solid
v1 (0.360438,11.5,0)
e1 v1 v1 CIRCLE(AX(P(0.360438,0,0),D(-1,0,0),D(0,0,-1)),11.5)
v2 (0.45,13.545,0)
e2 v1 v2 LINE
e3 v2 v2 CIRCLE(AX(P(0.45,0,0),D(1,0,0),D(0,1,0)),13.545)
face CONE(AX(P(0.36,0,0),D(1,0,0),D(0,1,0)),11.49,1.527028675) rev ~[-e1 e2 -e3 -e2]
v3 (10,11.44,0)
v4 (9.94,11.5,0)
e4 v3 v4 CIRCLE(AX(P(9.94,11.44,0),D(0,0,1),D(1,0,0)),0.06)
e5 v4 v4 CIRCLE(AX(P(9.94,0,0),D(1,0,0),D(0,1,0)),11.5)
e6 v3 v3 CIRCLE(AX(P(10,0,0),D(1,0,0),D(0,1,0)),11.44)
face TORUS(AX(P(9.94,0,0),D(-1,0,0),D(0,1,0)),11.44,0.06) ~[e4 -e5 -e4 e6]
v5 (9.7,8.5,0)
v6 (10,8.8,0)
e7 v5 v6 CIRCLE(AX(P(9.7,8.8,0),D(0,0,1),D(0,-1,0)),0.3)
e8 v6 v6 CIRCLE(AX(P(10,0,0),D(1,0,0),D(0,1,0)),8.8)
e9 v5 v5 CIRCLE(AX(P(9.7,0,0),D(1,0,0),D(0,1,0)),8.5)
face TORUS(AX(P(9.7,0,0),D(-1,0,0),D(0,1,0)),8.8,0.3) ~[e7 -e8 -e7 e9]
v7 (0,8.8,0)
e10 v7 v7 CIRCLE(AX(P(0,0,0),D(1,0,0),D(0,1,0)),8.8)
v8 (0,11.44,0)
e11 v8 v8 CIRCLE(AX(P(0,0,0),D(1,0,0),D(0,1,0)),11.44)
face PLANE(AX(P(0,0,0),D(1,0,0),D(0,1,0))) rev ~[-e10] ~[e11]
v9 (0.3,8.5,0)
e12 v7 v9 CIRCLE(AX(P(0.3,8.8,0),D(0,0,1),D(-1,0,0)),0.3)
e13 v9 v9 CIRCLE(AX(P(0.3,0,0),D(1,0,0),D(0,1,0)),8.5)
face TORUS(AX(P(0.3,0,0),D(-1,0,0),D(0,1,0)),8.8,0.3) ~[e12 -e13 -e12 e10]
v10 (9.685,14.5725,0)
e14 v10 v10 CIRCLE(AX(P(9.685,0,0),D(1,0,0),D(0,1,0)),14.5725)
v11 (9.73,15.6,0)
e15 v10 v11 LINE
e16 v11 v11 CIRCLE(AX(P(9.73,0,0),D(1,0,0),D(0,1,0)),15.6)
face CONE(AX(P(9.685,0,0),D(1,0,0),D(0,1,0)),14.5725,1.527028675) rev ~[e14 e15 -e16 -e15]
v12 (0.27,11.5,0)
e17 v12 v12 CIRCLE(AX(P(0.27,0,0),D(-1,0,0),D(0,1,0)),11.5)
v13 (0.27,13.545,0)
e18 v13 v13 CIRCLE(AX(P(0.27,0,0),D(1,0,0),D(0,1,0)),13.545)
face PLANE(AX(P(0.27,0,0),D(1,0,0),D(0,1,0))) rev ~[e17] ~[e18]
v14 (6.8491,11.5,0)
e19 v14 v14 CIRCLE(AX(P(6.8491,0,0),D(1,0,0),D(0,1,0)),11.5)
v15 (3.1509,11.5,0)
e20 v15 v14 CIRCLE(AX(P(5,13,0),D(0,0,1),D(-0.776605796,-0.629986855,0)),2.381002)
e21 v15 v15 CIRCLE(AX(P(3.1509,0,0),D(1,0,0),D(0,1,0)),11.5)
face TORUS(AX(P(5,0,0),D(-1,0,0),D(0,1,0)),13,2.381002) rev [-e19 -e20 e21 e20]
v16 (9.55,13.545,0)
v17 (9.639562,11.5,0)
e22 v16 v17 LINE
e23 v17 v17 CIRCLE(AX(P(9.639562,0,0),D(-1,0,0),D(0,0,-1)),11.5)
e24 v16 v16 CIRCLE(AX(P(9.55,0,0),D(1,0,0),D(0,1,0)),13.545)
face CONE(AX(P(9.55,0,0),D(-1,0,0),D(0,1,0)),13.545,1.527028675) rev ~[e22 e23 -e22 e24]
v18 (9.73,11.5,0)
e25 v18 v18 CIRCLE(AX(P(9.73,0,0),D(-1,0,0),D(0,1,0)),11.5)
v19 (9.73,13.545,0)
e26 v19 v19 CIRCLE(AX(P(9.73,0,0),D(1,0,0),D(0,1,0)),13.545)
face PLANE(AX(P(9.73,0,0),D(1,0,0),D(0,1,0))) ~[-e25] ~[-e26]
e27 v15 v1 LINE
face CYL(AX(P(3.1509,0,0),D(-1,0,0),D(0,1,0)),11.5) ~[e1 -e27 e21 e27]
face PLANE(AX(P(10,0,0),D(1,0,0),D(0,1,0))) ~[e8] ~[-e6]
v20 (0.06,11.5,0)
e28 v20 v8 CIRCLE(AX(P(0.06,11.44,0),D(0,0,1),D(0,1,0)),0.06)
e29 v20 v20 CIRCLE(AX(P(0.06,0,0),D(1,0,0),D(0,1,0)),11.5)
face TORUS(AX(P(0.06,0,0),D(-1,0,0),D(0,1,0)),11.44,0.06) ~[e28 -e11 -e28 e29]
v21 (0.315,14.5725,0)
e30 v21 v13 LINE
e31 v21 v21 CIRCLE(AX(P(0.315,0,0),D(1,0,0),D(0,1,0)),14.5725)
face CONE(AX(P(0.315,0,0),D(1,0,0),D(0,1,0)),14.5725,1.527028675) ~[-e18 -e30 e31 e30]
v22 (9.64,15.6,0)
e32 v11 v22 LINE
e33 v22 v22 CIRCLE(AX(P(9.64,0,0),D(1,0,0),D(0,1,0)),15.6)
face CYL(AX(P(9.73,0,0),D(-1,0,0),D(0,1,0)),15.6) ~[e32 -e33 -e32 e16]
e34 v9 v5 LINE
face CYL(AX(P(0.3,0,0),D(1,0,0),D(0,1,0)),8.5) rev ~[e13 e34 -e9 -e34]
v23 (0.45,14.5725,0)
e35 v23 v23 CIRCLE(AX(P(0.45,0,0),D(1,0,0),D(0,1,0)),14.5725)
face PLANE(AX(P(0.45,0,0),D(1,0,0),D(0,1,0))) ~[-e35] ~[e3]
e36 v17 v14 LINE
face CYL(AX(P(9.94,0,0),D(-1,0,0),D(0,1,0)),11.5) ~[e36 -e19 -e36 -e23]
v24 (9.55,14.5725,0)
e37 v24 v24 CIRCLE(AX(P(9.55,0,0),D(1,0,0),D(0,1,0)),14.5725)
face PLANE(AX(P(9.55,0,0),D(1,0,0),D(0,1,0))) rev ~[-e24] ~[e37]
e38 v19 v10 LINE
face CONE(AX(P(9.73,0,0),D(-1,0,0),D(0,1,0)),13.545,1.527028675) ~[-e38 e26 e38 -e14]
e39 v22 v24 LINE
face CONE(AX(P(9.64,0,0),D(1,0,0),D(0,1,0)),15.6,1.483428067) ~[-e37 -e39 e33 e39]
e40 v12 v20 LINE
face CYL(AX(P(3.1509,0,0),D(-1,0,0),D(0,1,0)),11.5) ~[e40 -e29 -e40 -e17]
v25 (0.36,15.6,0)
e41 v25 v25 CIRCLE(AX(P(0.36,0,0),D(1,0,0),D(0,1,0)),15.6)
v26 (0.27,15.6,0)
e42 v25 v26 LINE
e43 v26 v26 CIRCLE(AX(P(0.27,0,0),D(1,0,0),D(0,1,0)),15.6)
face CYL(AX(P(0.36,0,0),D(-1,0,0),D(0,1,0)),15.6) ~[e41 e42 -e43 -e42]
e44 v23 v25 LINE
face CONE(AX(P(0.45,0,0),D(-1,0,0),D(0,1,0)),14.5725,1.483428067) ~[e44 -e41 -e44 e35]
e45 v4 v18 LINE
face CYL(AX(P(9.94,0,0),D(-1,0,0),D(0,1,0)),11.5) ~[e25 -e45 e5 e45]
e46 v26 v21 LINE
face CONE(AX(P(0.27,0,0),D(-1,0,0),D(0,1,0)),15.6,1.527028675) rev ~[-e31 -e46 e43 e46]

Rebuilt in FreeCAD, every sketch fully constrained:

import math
import FreeCAD as App
import Part
import Sketcher

V = App.Vector


def add_polygon(sketch, points):
    """Adds a closed chain of lines whose ends are joined by coincident constraints."""
    first, n = sketch.GeometryCount, len(points)
    for a, b in zip(points, points[1:] + points[:1]):
        sketch.addGeometry(Part.LineSegment(App.Vector(*a, 0), App.Vector(*b, 0)), False)
    for i in range(n):
        sketch.addConstraint(Sketcher.Constraint("Coincident", first + i, 2, first + (i + 1) % n, 1))

doc = App.newDocument("Part")
body = doc.addObject("PartDesign::Body", "Body")

sketch1 = body.newObject("Sketcher::SketchObject", "Sketch")
sketch1.AttachmentSupport = (doc.getObject("XY_Plane"), [""])
sketch1.MapMode = "FlatFace"
sketch1.addGeometry(Part.ArcOfCircle(Part.Circle(V(0.06, 11.44, 0), V(0, 0, 1), 0.06), math.radians(90), math.radians(180)), False)
sketch1.addGeometry(Part.LineSegment(V(0, 11.44, 0), V(0, 8.8, 0)), False)
sketch1.addGeometry(Part.ArcOfCircle(Part.Circle(V(0.3, 8.8, 0), V(0, 0, 1), 0.3), math.radians(180), math.radians(270)), False)
sketch1.addGeometry(Part.LineSegment(V(0.3, 8.5, 0), V(9.7, 8.5, 0)), False)
sketch1.addGeometry(Part.ArcOfCircle(Part.Circle(V(9.7, 8.8, 0), V(0, 0, 1), 0.3), math.radians(-90), math.radians(0)), False)
sketch1.addGeometry(Part.LineSegment(V(10, 8.8, 0), V(10, 11.44, 0)), False)
sketch1.addGeometry(Part.ArcOfCircle(Part.Circle(V(9.94, 11.44, 0), V(0, 0, 1), 0.06), math.radians(0), math.radians(90)), False)
sketch1.addGeometry(Part.LineSegment(V(9.94, 11.5, 0), V(6.85, 11.5, 0)), False)
sketch1.addGeometry(Part.ArcOfCircle(Part.Circle(V(5, 13, 0), V(0, 0, 1), 2.38), math.radians(-141), math.radians(-39)), False)
sketch1.addGeometry(Part.LineSegment(V(3.15, 11.5, 0), V(0.06, 11.5, 0)), False)
sketch1.addConstraint(Sketcher.Constraint("Tangent", 0, 2, 1, 1))
sketch1.addConstraint(Sketcher.Constraint("Tangent", 1, 2, 2, 1))
sketch1.addConstraint(Sketcher.Constraint("Tangent", 2, 2, 3, 1))
sketch1.addConstraint(Sketcher.Constraint("Tangent", 3, 2, 4, 1))
sketch1.addConstraint(Sketcher.Constraint("Tangent", 4, 2, 5, 1))
sketch1.addConstraint(Sketcher.Constraint("Tangent", 5, 2, 6, 1))
sketch1.addConstraint(Sketcher.Constraint("Tangent", 6, 2, 7, 1))
sketch1.addConstraint(Sketcher.Constraint("Coincident", 7, 2, 8, 2))
sketch1.addConstraint(Sketcher.Constraint("Coincident", 8, 1, 9, 1))
sketch1.addConstraint(Sketcher.Constraint("Tangent", 9, 2, 0, 1))
sketch1.addConstraint(Sketcher.Constraint("Vertical", 1))
sketch1.addConstraint(Sketcher.Constraint("Horizontal", 3))
sketch1.addConstraint(Sketcher.Constraint("Vertical", 5))
sketch1.addConstraint(Sketcher.Constraint("Horizontal", 7))
sketch1.addConstraint(Sketcher.Constraint("Horizontal", 9))
sketch1.addConstraint(Sketcher.Constraint("Equal", 2, 4))
sketch1.addConstraint(Sketcher.Constraint("Equal", 0, 6))
sketch1.addConstraint(Sketcher.Constraint("PointOnObject", 0, 2, -2))
sketch1.addConstraint(Sketcher.Constraint("Horizontal", 0, 3, 6, 3))
sketch1.addConstraint(Sketcher.Constraint("Equal", 7, 9))
sketch1.addConstraint(Sketcher.Constraint("Radius", 2, 0.3))
sketch1.addConstraint(Sketcher.Constraint("Radius", 0, 0.06))
sketch1.addConstraint(Sketcher.Constraint("DistanceX", 3, 1, 3, 2, 9.4))
sketch1.addConstraint(Sketcher.Constraint("DistanceY", -1, 1, 8, 3, 13.0))
sketch1.addConstraint(Sketcher.Constraint("Radius", 8, 2.381))
sketch1.addConstraint(Sketcher.Constraint("DistanceY", 3, 2, 6, 2, 3.0))
sketch1.addConstraint(Sketcher.Constraint("DistanceY", -1, 1, 2, 3, 8.8))
revolution = body.newObject("PartDesign::Revolution", "Revolution")
revolution.Profile = sketch1
revolution.ReferenceAxis = (sketch1, ["H_Axis"])
revolution.Angle = 360

sketch2 = body.newObject("Sketcher::SketchObject", "Sketch001")
sketch2.AttachmentSupport = (doc.getObject("XY_Plane"), [""])
sketch2.MapMode = "FlatFace"
add_polygon(sketch2, [(0.36, 15.6), (0.27, 15.6), (0.32, 14.57), (0.27, 13.54), (0.27, 11.49), (0.36, 11.49), (0.45, 13.54), (0.45, 14.57)])
sketch2.addConstraint(Sketcher.Constraint("Horizontal", 0))
sketch2.addConstraint(Sketcher.Constraint("Vertical", 3))
sketch2.addConstraint(Sketcher.Constraint("Horizontal", 4))
sketch2.addConstraint(Sketcher.Constraint("Vertical", 6))
sketch2.addConstraint(Sketcher.Constraint("Parallel", 2, 5))
sketch2.addConstraint(Sketcher.Constraint("Horizontal", 2, 2, 5, 2))
sketch2.addConstraint(Sketcher.Constraint("Horizontal", 1, 2, 6, 2))
sketch2.addConstraint(Sketcher.Constraint("Vertical", 0, 2, 2, 2))
sketch2.addConstraint(Sketcher.Constraint("Vertical", 4, 2, 7, 2))
sketch2.addConstraint(Sketcher.Constraint("Equal", 1, 2))
sketch2.addConstraint(Sketcher.Constraint("DistanceX", 0, 2, 0, 1, 0.09))
sketch2.addConstraint(Sketcher.Constraint("DistanceY", -1, 1, 0, 2, 15.6))
sketch2.addConstraint(Sketcher.Constraint("DistanceY", 3, 2, 3, 1, 2.055))
sketch2.addConstraint(Sketcher.Constraint("DistanceX", -1, 1, 0, 2, 0.27))
sketch2.addConstraint(Sketcher.Constraint("DistanceY", -1, 1, 3, 2, 11.49))
sketch2.addConstraint(Sketcher.Constraint("DistanceX", -1, 1, 5, 2, 0.45))
revolution2 = body.newObject("PartDesign::Revolution", "Revolution001")
revolution2.Profile = sketch2
revolution2.ReferenceAxis = (sketch2, ["H_Axis"])
revolution2.Angle = 360

sketch3 = body.newObject("Sketcher::SketchObject", "Sketch002")
sketch3.AttachmentSupport = (doc.getObject("XY_Plane"), [""])
sketch3.MapMode = "FlatFace"
add_polygon(sketch3, [(9.64, 15.6), (9.55, 14.57), (9.55, 13.54), (9.64, 11.49), (9.73, 11.49), (9.73, 13.54), (9.69, 14.57), (9.73, 15.6)])
sketch3.addConstraint(Sketcher.Constraint("Vertical", 1))
sketch3.addConstraint(Sketcher.Constraint("Horizontal", 3))
sketch3.addConstraint(Sketcher.Constraint("Vertical", 4))
sketch3.addConstraint(Sketcher.Constraint("Horizontal", 7))
sketch3.addConstraint(Sketcher.Constraint("Parallel", 2, 5))
sketch3.addConstraint(Sketcher.Constraint("Horizontal", 1, 2, 4, 2))
sketch3.addConstraint(Sketcher.Constraint("Horizontal", 0, 2, 5, 2))
sketch3.addConstraint(Sketcher.Constraint("Vertical", 4, 2, 6, 2))
sketch3.addConstraint(Sketcher.Constraint("Vertical", 2, 2, 7, 2))
sketch3.addConstraint(Sketcher.Constraint("Equal", 5, 6))
sketch3.addConstraint(Sketcher.Constraint("DistanceX", 3, 1, 3, 2, 0.09))
sketch3.addConstraint(Sketcher.Constraint("DistanceY", -1, 1, 6, 2, 15.6))
sketch3.addConstraint(Sketcher.Constraint("DistanceY", 4, 1, 4, 2, 2.055))
sketch3.addConstraint(Sketcher.Constraint("DistanceX", -1, 1, 0, 2, 9.55))
sketch3.addConstraint(Sketcher.Constraint("DistanceX", -1, 1, 2, 2, 9.64))
sketch3.addConstraint(Sketcher.Constraint("DistanceY", -1, 1, 2, 2, 11.49))
revolution3 = body.newObject("PartDesign::Revolution", "Revolution002")
revolution3.Profile = sketch3
revolution3.ReferenceAxis = (sketch3, ["H_Axis"])
revolution3.Angle = 360

doc.recompute()
